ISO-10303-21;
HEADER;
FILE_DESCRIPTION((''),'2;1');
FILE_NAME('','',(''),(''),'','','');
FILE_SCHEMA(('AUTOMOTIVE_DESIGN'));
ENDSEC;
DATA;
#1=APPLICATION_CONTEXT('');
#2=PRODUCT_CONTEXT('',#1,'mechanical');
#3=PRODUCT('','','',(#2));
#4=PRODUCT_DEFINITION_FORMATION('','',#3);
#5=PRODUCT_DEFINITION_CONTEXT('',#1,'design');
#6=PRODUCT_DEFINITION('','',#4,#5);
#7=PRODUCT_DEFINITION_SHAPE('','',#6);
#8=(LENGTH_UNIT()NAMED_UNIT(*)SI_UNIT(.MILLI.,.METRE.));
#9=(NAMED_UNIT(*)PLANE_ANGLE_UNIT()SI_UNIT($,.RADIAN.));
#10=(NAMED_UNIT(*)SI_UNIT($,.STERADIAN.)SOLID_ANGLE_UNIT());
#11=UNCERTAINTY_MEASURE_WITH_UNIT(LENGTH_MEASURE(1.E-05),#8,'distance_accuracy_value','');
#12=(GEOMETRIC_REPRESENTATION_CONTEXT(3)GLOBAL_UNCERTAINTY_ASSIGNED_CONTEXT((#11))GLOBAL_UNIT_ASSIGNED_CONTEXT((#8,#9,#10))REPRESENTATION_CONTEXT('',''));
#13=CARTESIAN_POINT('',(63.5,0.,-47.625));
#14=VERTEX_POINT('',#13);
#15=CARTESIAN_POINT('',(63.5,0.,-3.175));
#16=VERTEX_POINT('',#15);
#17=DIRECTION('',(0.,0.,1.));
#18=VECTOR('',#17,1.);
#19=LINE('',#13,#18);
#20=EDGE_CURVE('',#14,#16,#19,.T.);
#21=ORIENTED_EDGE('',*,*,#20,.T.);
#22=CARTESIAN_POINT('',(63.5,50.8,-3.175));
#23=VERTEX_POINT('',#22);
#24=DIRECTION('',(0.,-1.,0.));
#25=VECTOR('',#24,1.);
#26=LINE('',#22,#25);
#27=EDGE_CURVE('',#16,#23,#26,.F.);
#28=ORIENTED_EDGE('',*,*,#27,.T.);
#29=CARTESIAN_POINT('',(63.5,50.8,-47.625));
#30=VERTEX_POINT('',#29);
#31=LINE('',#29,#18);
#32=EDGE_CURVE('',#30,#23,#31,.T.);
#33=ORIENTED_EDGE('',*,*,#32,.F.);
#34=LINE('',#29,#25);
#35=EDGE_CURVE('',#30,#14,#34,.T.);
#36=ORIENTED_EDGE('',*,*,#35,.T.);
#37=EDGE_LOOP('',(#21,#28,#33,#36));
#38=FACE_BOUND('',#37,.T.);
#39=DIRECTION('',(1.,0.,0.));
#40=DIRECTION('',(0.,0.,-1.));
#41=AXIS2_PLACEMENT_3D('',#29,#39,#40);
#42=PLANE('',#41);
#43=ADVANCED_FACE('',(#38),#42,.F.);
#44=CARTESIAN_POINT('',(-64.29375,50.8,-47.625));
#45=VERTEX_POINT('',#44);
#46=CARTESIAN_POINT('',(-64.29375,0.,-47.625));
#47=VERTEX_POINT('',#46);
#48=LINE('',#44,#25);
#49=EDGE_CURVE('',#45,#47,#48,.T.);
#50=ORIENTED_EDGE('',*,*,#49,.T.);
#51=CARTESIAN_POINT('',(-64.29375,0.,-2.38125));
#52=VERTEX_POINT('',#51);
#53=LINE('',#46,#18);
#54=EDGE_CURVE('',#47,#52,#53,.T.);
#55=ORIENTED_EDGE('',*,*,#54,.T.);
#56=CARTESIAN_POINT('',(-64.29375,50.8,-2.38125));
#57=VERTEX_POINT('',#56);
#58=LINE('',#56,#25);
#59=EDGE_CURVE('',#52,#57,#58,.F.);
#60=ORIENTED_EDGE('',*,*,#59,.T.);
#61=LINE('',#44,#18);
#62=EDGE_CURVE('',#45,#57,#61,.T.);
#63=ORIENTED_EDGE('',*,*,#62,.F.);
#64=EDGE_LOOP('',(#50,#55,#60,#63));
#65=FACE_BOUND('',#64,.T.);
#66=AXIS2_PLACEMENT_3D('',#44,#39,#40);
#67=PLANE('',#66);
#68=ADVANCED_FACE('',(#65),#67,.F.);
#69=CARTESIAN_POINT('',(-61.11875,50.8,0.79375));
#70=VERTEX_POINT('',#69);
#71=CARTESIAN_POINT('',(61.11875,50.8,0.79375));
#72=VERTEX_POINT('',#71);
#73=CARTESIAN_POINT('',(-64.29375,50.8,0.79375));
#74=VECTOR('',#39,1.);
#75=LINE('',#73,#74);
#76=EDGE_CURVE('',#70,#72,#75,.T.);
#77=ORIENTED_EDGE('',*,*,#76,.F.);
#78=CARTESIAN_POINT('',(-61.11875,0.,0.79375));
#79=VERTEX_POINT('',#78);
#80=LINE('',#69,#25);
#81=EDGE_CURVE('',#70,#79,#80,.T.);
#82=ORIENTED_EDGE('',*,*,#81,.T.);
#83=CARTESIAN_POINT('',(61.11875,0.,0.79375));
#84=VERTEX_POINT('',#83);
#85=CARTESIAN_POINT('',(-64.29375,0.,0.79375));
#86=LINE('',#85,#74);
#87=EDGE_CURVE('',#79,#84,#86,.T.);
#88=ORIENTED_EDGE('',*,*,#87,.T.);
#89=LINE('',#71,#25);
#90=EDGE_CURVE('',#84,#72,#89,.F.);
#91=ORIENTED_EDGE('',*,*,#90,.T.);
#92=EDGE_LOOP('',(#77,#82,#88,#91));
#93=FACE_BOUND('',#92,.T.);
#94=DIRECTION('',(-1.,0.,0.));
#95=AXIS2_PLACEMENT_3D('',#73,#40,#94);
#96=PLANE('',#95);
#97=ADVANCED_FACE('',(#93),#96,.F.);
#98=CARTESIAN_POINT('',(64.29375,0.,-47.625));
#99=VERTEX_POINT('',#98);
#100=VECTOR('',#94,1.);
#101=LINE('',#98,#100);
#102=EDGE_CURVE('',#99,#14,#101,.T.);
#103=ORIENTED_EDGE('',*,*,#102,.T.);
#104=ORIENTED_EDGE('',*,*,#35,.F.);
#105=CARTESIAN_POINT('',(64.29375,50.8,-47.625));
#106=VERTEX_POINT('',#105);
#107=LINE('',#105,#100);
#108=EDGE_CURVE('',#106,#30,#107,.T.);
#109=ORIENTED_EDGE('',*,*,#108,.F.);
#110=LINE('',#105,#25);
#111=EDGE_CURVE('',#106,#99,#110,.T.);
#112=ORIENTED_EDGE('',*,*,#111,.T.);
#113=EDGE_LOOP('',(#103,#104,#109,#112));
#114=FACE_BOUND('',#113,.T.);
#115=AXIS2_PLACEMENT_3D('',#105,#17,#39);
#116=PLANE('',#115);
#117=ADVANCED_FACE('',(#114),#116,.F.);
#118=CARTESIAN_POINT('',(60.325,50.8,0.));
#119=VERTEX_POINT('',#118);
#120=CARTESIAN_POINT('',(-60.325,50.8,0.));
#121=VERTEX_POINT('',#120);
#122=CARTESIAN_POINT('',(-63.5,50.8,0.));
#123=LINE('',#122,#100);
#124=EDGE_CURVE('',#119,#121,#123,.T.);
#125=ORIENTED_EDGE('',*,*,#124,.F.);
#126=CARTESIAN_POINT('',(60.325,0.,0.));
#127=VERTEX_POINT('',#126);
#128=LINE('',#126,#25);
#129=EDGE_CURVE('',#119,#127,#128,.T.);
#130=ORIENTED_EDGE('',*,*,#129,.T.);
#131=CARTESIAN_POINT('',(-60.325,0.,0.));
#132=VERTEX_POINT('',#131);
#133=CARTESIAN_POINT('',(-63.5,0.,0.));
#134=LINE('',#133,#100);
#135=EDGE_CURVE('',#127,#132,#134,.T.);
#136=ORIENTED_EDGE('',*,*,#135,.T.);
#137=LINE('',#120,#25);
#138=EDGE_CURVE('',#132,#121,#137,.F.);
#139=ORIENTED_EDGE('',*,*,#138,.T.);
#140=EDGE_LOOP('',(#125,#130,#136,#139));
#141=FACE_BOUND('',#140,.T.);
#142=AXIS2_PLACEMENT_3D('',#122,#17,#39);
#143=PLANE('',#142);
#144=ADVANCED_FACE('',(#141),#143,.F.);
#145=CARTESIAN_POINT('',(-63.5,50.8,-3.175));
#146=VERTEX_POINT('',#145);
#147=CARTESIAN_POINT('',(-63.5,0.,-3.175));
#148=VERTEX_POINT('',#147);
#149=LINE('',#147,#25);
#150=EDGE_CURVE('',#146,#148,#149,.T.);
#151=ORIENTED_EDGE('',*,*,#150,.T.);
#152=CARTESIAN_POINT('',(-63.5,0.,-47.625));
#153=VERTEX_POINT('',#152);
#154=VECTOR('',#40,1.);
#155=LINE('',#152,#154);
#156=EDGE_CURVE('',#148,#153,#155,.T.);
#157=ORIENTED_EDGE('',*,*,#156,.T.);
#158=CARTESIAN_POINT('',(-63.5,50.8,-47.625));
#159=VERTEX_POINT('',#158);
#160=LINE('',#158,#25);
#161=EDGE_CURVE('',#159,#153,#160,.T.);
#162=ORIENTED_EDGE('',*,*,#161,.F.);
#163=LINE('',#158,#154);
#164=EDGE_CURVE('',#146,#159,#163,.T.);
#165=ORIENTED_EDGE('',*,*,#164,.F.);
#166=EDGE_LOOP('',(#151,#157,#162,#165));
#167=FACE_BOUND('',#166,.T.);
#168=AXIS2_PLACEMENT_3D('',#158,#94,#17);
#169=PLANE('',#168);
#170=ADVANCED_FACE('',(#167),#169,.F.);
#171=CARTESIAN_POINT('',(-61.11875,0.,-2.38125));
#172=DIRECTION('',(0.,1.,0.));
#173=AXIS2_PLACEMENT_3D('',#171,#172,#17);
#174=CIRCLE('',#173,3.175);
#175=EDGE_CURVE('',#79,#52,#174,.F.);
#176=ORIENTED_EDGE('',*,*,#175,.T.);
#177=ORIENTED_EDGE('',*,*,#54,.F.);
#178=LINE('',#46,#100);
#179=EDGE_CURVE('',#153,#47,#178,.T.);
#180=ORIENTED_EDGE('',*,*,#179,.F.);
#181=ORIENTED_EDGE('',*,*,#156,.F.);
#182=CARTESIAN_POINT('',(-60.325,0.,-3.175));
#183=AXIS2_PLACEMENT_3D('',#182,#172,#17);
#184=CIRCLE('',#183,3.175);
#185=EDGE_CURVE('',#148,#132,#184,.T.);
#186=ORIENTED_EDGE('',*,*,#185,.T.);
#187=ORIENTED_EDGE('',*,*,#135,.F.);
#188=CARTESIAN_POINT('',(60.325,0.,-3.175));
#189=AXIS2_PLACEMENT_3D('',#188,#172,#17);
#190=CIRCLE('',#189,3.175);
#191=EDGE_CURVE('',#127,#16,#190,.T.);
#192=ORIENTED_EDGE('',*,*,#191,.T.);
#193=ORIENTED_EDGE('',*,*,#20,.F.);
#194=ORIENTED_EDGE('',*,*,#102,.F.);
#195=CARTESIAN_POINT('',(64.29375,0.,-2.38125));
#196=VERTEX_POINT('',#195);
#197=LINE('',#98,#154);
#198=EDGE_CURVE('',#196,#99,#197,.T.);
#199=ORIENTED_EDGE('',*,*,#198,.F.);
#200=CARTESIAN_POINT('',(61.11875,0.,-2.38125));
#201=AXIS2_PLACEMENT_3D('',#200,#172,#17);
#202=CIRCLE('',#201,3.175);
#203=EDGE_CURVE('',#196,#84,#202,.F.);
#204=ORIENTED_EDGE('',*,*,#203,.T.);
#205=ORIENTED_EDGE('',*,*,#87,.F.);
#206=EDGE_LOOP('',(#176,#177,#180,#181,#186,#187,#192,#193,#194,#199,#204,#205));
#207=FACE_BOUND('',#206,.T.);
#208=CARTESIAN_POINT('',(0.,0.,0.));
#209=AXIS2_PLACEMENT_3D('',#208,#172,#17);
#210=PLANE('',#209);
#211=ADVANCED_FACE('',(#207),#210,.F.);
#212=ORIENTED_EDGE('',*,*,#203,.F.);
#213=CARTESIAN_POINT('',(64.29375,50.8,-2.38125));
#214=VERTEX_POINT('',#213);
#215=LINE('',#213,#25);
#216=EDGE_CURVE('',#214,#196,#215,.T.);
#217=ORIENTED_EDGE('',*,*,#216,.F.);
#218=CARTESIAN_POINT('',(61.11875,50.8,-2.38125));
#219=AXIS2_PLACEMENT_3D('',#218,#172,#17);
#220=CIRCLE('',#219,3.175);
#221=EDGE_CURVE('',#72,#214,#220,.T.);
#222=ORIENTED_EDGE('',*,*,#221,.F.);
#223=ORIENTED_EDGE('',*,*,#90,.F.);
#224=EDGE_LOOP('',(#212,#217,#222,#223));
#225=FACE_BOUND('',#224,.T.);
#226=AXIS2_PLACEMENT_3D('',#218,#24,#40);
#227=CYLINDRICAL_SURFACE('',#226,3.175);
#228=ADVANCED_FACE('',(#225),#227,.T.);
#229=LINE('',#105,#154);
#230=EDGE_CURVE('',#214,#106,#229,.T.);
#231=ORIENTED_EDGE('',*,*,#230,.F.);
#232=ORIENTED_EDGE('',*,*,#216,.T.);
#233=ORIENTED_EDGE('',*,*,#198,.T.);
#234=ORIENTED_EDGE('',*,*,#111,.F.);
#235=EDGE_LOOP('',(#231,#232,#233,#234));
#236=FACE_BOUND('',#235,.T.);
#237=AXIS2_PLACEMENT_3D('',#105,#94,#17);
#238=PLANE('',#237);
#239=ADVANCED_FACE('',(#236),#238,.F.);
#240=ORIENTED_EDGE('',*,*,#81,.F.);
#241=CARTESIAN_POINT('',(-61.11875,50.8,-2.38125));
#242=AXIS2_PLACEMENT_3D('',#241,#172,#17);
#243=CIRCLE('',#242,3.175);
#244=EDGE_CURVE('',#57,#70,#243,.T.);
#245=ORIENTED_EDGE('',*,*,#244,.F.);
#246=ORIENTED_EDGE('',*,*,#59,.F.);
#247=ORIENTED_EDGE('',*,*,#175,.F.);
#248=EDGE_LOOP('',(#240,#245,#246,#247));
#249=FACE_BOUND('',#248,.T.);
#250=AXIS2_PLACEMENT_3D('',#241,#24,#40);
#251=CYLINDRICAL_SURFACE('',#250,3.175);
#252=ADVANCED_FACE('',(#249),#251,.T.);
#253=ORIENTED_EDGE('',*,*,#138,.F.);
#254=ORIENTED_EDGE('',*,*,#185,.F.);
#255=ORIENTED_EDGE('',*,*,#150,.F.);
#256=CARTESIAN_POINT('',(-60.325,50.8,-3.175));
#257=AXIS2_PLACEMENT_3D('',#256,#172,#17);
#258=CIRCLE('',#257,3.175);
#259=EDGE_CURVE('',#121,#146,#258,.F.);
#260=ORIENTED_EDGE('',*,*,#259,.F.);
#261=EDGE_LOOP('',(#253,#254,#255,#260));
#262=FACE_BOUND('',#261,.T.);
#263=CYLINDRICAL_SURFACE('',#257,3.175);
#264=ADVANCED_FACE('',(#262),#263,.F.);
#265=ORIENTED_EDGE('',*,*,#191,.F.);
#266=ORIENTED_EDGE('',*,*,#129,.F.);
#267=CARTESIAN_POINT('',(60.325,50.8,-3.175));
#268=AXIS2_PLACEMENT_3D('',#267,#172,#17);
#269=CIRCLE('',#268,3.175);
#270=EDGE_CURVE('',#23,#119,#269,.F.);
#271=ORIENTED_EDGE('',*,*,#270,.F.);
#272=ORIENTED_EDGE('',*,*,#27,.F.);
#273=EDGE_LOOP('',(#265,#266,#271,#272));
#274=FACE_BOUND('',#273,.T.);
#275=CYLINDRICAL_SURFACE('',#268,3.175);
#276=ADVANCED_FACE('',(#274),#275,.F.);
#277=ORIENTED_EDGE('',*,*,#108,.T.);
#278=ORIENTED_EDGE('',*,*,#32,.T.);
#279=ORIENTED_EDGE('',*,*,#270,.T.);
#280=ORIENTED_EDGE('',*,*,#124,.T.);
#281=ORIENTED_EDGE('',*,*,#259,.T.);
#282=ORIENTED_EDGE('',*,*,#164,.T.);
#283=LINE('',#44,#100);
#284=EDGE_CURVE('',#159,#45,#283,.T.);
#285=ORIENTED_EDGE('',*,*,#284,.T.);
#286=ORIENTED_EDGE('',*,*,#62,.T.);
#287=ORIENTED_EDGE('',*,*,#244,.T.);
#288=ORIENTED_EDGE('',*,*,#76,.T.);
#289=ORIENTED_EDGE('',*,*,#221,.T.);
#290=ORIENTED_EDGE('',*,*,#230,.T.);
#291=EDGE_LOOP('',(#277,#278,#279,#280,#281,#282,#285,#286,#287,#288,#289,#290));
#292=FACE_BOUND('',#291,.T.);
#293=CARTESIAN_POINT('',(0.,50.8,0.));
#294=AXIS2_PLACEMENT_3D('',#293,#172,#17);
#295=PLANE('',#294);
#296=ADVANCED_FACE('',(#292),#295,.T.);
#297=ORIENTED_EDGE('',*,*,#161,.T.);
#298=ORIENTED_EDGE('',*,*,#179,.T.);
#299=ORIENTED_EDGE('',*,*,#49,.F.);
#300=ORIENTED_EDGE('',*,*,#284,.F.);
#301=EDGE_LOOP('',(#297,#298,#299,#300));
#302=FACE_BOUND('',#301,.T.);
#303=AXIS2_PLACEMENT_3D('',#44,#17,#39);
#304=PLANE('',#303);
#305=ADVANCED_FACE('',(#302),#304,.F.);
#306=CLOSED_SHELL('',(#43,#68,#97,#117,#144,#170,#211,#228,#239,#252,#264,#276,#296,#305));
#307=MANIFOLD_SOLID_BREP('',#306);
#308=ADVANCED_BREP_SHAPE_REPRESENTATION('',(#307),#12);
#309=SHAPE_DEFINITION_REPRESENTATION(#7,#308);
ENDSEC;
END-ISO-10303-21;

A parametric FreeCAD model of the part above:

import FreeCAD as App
import Part
import Sketcher

V = App.Vector
Q = App.Units.Quantity


def edges_at(feature, points):
    """Names of the edges that pass closest to the given points."""
    edges = feature.Shape.Edges
    near = lambda p: min(range(len(edges)), key=lambda i: edges[i].distToShape(Part.Vertex(*p))[0])
    return sorted({f"Edge{near(p) + 1}" for p in points})


def add_polygon(sketch, points):
    """Adds a closed chain of lines whose ends are joined by coincident constraints."""
    first, n = sketch.GeometryCount, len(points)
    for a, b in zip(points, points[1:] + points[:1]):
        sketch.addGeometry(Part.LineSegment(App.Vector(*a, 0), App.Vector(*b, 0)), False)
    for i in range(n):
        sketch.addConstraint(Sketcher.Constraint("Coincident", first + i, 2, first + (i + 1) % n, 1))

doc = App.newDocument("Part")
body = doc.addObject("PartDesign::Body", "Body")

# Sketch on XZ plane
sketch1 = body.newObject("Sketcher::SketchObject", "Sketch")
sketch1.AttachmentSupport = (doc.getObject("XZ_Plane"), [""])
sketch1.MapMode = "FlatFace"
add_polygon(sketch1, [(-63.5, -47.625), (-64.29375, -47.625), (-64.29375, 0.79375), (64.29375, 0.79375), (64.29375, -47.625), (63.5, -47.625), (63.5, 0), (-63.5, 0)])  # lines 0-7
sketch1.addConstraint(Sketcher.Constraint("Horizontal", 0))
sketch1.addConstraint(Sketcher.Constraint("Vertical", 1))
sketch1.addConstraint(Sketcher.Constraint("Horizontal", 2))
sketch1.addConstraint(Sketcher.Constraint("Vertical", 3))
sketch1.addConstraint(Sketcher.Constraint("Horizontal", 4))
sketch1.addConstraint(Sketcher.Constraint("Vertical", 5))
sketch1.addConstraint(Sketcher.Constraint("Horizontal", 6))
sketch1.addConstraint(Sketcher.Constraint("Vertical", 7))
sketch1.addConstraint(Sketcher.Constraint("Symmetric", 5, 2, 6, 2, -1, 1))
sketch1.addConstraint(Sketcher.Constraint("Symmetric", 0, 2, 3, 2, -2))
sketch1.addConstraint(Sketcher.Constraint("DistanceX", 6, 2, 6, 1, Q("5 in")))
sketch1.addConstraint(Sketcher.Constraint("DistanceX", 0, 2, 0, 1, Q("0.03125 in")))
sketch1.addConstraint(Sketcher.Constraint("DistanceY", 1, 1, 1, 2, Q("1.90625 in")))
sketch1.addConstraint(Sketcher.Constraint("DistanceY", 5, 1, 5, 2, Q("1.875 in")))
pad1 = body.newObject("PartDesign::Pad", "Pad")
pad1.Profile = sketch1
pad1.Length = Q("2 in")
pad1.Reversed = True
doc.recompute()

fillet = body.newObject("PartDesign::Fillet", "Fillet")
fillet.Base = (pad1, edges_at(pad1, [
    (-63.5, 25.4, 0),
    (63.5, 25.4, 0),
    (64.294, 25.4, 0.794),
    (-64.294, 25.4, 0.794),
]))
fillet.Radius = Q("0.125 in")

doc.recompute()
